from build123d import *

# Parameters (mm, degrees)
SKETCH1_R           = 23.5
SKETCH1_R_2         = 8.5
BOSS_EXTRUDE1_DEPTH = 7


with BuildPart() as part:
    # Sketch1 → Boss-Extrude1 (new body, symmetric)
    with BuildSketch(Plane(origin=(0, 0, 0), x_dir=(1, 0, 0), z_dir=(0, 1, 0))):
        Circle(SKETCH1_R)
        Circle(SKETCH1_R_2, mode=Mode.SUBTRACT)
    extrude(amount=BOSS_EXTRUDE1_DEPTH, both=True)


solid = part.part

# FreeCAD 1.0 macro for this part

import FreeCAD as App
import Part
import Sketcher

doc = App.newDocument("Part")
body = doc.addObject("PartDesign::Body", "Body")

# Sketch on XZ plane
sketch1 = doc.addObject("Sketcher::SketchObject", "Sketch")
body.addObject(sketch1)
sketch1.AttachmentSupport = (doc.XZ_Plane, [""])
sketch1.MapMode = "FlatFace"
sketch1.addGeometry(Part.Circle(App.Vector(0, 0, 0), App.Vector(0, 0, 1), 24), False)
sketch1.addGeometry(Part.Circle(App.Vector(0, 0, 0), App.Vector(0, 0, 1), 8), False)
sketch1.addConstraint(Sketcher.Constraint("Coincident", 0, 3, -1, 1))
sketch1.addConstraint(Sketcher.Constraint("Coincident", 1, 3, -1, 1))
sketch1.addConstraint(Sketcher.Constraint("Diameter", 0, 47.0))
sketch1.addConstraint(Sketcher.Constraint("Diameter", 1, 17.0))
pad1 = doc.addObject("PartDesign::Pad", "Pad")
body.addObject(pad1)
pad1.Profile = sketch1
pad1.Length = 14
pad1.Midplane = True

doc.recompute()
